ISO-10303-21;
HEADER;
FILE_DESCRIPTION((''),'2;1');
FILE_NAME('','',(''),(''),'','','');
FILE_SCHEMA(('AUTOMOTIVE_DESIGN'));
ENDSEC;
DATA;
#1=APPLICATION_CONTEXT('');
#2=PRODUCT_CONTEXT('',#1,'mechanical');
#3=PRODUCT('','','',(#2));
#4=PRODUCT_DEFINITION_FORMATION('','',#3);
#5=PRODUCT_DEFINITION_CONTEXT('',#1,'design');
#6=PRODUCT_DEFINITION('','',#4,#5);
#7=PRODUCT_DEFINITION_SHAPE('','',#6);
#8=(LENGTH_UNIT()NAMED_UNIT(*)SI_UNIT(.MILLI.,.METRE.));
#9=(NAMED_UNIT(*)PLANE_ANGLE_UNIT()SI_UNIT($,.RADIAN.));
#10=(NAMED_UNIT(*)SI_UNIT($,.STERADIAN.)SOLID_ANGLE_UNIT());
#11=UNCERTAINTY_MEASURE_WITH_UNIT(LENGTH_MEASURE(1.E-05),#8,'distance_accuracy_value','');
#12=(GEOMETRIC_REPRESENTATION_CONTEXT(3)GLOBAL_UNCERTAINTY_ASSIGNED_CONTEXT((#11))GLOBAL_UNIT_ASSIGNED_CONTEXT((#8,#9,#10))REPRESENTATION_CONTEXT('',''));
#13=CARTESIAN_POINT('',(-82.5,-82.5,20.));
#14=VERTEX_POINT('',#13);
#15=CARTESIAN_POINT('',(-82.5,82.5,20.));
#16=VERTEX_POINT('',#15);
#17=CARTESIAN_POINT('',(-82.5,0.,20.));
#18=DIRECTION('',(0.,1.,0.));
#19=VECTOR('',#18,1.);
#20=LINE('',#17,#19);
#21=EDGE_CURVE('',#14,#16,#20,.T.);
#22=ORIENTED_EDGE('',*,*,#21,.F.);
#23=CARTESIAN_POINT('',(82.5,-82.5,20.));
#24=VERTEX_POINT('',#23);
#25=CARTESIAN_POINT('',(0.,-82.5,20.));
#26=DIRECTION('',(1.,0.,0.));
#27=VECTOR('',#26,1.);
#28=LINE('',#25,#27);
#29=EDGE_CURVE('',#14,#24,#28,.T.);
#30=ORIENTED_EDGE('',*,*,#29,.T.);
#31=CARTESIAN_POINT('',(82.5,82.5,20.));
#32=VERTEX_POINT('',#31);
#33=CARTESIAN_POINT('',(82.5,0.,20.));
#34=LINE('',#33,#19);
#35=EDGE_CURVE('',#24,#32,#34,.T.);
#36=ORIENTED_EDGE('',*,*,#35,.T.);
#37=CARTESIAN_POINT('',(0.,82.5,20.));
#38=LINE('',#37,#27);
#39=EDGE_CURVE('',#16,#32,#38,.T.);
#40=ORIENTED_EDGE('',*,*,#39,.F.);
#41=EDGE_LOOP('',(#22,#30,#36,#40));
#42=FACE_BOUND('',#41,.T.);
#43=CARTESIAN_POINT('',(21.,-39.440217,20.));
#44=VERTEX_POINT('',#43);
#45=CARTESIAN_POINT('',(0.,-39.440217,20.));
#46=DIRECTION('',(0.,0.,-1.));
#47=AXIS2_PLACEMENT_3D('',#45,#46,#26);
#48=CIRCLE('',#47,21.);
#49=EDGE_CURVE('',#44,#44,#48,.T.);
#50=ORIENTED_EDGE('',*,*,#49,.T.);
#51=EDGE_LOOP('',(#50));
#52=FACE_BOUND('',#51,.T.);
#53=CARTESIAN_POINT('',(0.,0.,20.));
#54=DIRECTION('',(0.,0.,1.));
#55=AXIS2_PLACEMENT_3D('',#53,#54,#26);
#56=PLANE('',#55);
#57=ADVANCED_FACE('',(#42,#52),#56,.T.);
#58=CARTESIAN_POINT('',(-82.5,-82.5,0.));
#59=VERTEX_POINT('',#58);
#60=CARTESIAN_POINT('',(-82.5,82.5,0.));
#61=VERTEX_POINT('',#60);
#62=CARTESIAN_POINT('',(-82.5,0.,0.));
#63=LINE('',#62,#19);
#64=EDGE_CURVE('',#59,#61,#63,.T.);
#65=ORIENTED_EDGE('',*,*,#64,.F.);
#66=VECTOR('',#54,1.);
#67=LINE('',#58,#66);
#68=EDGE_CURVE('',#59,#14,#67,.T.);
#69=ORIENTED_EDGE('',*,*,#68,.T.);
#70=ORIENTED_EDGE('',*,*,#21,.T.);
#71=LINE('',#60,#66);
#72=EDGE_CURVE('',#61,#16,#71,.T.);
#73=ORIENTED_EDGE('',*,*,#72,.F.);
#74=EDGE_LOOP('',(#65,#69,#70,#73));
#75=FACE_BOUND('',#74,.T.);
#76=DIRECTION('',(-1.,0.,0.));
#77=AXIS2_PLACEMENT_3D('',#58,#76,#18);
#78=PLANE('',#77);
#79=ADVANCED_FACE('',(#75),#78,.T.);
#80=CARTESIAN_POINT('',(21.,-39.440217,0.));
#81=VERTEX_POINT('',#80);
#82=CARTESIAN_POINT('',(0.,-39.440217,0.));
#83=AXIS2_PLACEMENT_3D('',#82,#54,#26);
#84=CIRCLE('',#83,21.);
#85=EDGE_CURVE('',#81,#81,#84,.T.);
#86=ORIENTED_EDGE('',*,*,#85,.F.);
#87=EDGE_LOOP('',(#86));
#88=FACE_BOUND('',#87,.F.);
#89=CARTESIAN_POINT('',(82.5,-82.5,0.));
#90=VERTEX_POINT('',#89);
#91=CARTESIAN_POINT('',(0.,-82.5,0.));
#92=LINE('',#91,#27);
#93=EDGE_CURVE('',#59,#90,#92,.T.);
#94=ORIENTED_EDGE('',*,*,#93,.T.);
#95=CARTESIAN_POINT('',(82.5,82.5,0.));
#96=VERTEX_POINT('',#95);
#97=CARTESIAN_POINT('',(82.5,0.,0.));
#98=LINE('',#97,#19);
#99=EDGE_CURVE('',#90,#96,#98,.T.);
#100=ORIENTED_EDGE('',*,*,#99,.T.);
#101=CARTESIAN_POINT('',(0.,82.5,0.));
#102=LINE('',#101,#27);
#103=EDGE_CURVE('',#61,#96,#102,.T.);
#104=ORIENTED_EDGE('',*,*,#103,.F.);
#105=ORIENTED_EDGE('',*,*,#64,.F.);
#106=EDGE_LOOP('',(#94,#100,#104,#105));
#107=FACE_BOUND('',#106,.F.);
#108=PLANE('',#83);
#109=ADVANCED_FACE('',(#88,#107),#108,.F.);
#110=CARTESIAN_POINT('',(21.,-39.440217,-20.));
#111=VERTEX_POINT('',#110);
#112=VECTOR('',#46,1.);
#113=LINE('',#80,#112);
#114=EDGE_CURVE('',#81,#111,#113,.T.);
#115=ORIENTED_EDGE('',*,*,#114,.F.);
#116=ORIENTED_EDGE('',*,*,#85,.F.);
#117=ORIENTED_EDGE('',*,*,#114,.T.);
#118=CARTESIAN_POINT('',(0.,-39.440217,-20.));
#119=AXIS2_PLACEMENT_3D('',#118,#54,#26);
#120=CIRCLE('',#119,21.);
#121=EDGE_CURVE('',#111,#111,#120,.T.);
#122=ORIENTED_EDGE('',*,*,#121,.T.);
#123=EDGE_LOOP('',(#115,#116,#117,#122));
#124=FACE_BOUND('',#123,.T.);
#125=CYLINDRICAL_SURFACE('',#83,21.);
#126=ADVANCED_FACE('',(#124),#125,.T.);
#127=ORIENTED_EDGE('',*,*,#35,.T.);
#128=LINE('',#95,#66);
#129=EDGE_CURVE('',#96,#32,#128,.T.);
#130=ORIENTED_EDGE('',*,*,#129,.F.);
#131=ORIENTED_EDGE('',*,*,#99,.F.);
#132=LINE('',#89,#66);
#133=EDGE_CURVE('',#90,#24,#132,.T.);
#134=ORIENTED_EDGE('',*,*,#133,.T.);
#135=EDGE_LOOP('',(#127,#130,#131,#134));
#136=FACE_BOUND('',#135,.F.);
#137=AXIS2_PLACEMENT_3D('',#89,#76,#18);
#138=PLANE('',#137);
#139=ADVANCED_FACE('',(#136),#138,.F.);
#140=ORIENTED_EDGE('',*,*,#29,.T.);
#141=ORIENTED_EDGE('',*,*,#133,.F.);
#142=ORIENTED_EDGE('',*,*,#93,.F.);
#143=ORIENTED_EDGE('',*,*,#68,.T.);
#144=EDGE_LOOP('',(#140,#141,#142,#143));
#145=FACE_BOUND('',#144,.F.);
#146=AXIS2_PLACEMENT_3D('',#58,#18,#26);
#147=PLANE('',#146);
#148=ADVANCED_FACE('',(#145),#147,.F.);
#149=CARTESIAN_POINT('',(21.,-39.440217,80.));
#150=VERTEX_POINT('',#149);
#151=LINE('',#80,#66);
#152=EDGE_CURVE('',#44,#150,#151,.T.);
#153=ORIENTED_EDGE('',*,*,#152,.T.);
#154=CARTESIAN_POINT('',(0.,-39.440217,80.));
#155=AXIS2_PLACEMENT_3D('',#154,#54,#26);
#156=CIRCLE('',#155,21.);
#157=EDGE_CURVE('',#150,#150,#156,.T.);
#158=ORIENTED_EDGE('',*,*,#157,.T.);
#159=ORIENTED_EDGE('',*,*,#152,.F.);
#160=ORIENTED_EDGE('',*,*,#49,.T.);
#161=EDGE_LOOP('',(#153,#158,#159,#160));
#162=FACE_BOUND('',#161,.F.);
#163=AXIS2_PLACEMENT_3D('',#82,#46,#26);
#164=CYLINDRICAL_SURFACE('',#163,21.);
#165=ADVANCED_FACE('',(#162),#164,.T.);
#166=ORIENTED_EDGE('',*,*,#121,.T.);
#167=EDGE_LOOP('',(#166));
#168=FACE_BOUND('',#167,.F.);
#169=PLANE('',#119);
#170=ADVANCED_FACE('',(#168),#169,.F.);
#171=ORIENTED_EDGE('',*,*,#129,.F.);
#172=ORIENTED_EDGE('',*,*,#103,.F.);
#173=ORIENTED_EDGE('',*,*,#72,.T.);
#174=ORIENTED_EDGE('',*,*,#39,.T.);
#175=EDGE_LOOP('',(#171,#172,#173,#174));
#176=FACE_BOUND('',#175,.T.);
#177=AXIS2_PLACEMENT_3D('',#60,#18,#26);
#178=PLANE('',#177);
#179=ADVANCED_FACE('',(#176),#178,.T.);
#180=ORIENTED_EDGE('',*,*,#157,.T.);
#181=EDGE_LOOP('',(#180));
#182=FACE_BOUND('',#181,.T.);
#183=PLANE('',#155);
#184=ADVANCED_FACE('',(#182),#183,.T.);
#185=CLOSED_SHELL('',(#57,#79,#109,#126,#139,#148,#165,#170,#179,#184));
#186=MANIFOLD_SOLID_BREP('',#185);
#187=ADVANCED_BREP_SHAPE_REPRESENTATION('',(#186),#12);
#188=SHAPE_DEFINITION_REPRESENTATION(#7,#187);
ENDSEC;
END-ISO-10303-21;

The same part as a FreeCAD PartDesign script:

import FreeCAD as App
import Part
import Sketcher
from FreeCAD import Vector
Q = App.Units.Quantity


def add_polygon(sketch, points):
    """Adds a closed chain of lines whose ends are joined by coincident constraints."""
    first, n = sketch.GeometryCount, len(points)
    for a, b in zip(points, points[1:] + points[:1]):
        sketch.addGeometry(Part.LineSegment(App.Vector(*a, 0), App.Vector(*b, 0)), False)
    for i in range(n):
        sketch.addConstraint(Sketcher.Constraint("Coincident", first + i, 2, first + (i + 1) % n, 1))

doc = App.newDocument("Part")
body = doc.addObject("PartDesign::Body", "Body")

# Sketch on XY plane
sketch1 = doc.addObject("Sketcher::SketchObject", "Sketch")
body.addObject(sketch1)
sketch1.AttachmentSupport = (doc.XY_Plane, [""])
sketch1.MapMode = "FlatFace"
add_polygon(sketch1, [(-82, 82), (-82, -82), (82, -82), (82, 82)])  # lines 0-3
sketch1.addConstraint([
    Sketcher.Constraint("Vertical", 0),
    Sketcher.Constraint("Horizontal", 1),
    Sketcher.Constraint("Vertical", 2),
    Sketcher.Constraint("Horizontal", 3),
    Sketcher.Constraint("Symmetric", 0, 2, 2, 2, -1, 1),
    Sketcher.Constraint("Equal", 3, 0),
    Sketcher.Constraint("DistanceX", 1, 1, 1, 2, Q("165 mm")),
])
pad1 = doc.addObject("PartDesign::Pad", "Pad")
body.addObject(pad1)
pad1.Profile = sketch1
pad1.Length = 20

# Sketch on XY plane
sketch2 = doc.addObject("Sketcher::SketchObject", "Sketch001")
body.addObject(sketch2)
sketch2.AttachmentSupport = (doc.XY_Plane, [""])
sketch2.MapMode = "FlatFace"
sketch2.addGeometry(Part.Circle(Vector(0, -39, 0), Vector(0, 0, 1), 21), False)
sketch2.addConstraint([
    Sketcher.Constraint("PointOnObject", 0, 3, -2),
    Sketcher.Constraint("Diameter", 0, Q("42 mm")),
    Sketcher.Constraint("DistanceY", 0, 3, -1, 1, Q("39.440217 mm")),
])
pad2 = doc.addObject("PartDesign::Pad", "Pad001")
body.addObject(pad2)
pad2.Profile = sketch2
pad2.Length = 80

# Sketch on XY plane
sketch3 = doc.addObject("Sketcher::SketchObject", "Sketch002")
body.addObject(sketch3)
sketch3.AttachmentSupport = (doc.XY_Plane, [""])
sketch3.MapMode = "FlatFace"
sketch3.addGeometry(Part.Circle(Vector(0, -39, 0), Vector(0, 0, 1), 21), False)
sketch3.addConstraint([
    Sketcher.Constraint("PointOnObject", 0, 3, -2),
    Sketcher.Constraint("Diameter", 0, Q("42 mm")),
    Sketcher.Constraint("DistanceY", 0, 3, -1, 1, Q("39.440217 mm")),
])
pad3 = doc.addObject("PartDesign::Pad", "Pad002")
body.addObject(pad3)
pad3.Profile = sketch3
pad3.Length = 20
pad3.Reversed = True

doc.recompute()
